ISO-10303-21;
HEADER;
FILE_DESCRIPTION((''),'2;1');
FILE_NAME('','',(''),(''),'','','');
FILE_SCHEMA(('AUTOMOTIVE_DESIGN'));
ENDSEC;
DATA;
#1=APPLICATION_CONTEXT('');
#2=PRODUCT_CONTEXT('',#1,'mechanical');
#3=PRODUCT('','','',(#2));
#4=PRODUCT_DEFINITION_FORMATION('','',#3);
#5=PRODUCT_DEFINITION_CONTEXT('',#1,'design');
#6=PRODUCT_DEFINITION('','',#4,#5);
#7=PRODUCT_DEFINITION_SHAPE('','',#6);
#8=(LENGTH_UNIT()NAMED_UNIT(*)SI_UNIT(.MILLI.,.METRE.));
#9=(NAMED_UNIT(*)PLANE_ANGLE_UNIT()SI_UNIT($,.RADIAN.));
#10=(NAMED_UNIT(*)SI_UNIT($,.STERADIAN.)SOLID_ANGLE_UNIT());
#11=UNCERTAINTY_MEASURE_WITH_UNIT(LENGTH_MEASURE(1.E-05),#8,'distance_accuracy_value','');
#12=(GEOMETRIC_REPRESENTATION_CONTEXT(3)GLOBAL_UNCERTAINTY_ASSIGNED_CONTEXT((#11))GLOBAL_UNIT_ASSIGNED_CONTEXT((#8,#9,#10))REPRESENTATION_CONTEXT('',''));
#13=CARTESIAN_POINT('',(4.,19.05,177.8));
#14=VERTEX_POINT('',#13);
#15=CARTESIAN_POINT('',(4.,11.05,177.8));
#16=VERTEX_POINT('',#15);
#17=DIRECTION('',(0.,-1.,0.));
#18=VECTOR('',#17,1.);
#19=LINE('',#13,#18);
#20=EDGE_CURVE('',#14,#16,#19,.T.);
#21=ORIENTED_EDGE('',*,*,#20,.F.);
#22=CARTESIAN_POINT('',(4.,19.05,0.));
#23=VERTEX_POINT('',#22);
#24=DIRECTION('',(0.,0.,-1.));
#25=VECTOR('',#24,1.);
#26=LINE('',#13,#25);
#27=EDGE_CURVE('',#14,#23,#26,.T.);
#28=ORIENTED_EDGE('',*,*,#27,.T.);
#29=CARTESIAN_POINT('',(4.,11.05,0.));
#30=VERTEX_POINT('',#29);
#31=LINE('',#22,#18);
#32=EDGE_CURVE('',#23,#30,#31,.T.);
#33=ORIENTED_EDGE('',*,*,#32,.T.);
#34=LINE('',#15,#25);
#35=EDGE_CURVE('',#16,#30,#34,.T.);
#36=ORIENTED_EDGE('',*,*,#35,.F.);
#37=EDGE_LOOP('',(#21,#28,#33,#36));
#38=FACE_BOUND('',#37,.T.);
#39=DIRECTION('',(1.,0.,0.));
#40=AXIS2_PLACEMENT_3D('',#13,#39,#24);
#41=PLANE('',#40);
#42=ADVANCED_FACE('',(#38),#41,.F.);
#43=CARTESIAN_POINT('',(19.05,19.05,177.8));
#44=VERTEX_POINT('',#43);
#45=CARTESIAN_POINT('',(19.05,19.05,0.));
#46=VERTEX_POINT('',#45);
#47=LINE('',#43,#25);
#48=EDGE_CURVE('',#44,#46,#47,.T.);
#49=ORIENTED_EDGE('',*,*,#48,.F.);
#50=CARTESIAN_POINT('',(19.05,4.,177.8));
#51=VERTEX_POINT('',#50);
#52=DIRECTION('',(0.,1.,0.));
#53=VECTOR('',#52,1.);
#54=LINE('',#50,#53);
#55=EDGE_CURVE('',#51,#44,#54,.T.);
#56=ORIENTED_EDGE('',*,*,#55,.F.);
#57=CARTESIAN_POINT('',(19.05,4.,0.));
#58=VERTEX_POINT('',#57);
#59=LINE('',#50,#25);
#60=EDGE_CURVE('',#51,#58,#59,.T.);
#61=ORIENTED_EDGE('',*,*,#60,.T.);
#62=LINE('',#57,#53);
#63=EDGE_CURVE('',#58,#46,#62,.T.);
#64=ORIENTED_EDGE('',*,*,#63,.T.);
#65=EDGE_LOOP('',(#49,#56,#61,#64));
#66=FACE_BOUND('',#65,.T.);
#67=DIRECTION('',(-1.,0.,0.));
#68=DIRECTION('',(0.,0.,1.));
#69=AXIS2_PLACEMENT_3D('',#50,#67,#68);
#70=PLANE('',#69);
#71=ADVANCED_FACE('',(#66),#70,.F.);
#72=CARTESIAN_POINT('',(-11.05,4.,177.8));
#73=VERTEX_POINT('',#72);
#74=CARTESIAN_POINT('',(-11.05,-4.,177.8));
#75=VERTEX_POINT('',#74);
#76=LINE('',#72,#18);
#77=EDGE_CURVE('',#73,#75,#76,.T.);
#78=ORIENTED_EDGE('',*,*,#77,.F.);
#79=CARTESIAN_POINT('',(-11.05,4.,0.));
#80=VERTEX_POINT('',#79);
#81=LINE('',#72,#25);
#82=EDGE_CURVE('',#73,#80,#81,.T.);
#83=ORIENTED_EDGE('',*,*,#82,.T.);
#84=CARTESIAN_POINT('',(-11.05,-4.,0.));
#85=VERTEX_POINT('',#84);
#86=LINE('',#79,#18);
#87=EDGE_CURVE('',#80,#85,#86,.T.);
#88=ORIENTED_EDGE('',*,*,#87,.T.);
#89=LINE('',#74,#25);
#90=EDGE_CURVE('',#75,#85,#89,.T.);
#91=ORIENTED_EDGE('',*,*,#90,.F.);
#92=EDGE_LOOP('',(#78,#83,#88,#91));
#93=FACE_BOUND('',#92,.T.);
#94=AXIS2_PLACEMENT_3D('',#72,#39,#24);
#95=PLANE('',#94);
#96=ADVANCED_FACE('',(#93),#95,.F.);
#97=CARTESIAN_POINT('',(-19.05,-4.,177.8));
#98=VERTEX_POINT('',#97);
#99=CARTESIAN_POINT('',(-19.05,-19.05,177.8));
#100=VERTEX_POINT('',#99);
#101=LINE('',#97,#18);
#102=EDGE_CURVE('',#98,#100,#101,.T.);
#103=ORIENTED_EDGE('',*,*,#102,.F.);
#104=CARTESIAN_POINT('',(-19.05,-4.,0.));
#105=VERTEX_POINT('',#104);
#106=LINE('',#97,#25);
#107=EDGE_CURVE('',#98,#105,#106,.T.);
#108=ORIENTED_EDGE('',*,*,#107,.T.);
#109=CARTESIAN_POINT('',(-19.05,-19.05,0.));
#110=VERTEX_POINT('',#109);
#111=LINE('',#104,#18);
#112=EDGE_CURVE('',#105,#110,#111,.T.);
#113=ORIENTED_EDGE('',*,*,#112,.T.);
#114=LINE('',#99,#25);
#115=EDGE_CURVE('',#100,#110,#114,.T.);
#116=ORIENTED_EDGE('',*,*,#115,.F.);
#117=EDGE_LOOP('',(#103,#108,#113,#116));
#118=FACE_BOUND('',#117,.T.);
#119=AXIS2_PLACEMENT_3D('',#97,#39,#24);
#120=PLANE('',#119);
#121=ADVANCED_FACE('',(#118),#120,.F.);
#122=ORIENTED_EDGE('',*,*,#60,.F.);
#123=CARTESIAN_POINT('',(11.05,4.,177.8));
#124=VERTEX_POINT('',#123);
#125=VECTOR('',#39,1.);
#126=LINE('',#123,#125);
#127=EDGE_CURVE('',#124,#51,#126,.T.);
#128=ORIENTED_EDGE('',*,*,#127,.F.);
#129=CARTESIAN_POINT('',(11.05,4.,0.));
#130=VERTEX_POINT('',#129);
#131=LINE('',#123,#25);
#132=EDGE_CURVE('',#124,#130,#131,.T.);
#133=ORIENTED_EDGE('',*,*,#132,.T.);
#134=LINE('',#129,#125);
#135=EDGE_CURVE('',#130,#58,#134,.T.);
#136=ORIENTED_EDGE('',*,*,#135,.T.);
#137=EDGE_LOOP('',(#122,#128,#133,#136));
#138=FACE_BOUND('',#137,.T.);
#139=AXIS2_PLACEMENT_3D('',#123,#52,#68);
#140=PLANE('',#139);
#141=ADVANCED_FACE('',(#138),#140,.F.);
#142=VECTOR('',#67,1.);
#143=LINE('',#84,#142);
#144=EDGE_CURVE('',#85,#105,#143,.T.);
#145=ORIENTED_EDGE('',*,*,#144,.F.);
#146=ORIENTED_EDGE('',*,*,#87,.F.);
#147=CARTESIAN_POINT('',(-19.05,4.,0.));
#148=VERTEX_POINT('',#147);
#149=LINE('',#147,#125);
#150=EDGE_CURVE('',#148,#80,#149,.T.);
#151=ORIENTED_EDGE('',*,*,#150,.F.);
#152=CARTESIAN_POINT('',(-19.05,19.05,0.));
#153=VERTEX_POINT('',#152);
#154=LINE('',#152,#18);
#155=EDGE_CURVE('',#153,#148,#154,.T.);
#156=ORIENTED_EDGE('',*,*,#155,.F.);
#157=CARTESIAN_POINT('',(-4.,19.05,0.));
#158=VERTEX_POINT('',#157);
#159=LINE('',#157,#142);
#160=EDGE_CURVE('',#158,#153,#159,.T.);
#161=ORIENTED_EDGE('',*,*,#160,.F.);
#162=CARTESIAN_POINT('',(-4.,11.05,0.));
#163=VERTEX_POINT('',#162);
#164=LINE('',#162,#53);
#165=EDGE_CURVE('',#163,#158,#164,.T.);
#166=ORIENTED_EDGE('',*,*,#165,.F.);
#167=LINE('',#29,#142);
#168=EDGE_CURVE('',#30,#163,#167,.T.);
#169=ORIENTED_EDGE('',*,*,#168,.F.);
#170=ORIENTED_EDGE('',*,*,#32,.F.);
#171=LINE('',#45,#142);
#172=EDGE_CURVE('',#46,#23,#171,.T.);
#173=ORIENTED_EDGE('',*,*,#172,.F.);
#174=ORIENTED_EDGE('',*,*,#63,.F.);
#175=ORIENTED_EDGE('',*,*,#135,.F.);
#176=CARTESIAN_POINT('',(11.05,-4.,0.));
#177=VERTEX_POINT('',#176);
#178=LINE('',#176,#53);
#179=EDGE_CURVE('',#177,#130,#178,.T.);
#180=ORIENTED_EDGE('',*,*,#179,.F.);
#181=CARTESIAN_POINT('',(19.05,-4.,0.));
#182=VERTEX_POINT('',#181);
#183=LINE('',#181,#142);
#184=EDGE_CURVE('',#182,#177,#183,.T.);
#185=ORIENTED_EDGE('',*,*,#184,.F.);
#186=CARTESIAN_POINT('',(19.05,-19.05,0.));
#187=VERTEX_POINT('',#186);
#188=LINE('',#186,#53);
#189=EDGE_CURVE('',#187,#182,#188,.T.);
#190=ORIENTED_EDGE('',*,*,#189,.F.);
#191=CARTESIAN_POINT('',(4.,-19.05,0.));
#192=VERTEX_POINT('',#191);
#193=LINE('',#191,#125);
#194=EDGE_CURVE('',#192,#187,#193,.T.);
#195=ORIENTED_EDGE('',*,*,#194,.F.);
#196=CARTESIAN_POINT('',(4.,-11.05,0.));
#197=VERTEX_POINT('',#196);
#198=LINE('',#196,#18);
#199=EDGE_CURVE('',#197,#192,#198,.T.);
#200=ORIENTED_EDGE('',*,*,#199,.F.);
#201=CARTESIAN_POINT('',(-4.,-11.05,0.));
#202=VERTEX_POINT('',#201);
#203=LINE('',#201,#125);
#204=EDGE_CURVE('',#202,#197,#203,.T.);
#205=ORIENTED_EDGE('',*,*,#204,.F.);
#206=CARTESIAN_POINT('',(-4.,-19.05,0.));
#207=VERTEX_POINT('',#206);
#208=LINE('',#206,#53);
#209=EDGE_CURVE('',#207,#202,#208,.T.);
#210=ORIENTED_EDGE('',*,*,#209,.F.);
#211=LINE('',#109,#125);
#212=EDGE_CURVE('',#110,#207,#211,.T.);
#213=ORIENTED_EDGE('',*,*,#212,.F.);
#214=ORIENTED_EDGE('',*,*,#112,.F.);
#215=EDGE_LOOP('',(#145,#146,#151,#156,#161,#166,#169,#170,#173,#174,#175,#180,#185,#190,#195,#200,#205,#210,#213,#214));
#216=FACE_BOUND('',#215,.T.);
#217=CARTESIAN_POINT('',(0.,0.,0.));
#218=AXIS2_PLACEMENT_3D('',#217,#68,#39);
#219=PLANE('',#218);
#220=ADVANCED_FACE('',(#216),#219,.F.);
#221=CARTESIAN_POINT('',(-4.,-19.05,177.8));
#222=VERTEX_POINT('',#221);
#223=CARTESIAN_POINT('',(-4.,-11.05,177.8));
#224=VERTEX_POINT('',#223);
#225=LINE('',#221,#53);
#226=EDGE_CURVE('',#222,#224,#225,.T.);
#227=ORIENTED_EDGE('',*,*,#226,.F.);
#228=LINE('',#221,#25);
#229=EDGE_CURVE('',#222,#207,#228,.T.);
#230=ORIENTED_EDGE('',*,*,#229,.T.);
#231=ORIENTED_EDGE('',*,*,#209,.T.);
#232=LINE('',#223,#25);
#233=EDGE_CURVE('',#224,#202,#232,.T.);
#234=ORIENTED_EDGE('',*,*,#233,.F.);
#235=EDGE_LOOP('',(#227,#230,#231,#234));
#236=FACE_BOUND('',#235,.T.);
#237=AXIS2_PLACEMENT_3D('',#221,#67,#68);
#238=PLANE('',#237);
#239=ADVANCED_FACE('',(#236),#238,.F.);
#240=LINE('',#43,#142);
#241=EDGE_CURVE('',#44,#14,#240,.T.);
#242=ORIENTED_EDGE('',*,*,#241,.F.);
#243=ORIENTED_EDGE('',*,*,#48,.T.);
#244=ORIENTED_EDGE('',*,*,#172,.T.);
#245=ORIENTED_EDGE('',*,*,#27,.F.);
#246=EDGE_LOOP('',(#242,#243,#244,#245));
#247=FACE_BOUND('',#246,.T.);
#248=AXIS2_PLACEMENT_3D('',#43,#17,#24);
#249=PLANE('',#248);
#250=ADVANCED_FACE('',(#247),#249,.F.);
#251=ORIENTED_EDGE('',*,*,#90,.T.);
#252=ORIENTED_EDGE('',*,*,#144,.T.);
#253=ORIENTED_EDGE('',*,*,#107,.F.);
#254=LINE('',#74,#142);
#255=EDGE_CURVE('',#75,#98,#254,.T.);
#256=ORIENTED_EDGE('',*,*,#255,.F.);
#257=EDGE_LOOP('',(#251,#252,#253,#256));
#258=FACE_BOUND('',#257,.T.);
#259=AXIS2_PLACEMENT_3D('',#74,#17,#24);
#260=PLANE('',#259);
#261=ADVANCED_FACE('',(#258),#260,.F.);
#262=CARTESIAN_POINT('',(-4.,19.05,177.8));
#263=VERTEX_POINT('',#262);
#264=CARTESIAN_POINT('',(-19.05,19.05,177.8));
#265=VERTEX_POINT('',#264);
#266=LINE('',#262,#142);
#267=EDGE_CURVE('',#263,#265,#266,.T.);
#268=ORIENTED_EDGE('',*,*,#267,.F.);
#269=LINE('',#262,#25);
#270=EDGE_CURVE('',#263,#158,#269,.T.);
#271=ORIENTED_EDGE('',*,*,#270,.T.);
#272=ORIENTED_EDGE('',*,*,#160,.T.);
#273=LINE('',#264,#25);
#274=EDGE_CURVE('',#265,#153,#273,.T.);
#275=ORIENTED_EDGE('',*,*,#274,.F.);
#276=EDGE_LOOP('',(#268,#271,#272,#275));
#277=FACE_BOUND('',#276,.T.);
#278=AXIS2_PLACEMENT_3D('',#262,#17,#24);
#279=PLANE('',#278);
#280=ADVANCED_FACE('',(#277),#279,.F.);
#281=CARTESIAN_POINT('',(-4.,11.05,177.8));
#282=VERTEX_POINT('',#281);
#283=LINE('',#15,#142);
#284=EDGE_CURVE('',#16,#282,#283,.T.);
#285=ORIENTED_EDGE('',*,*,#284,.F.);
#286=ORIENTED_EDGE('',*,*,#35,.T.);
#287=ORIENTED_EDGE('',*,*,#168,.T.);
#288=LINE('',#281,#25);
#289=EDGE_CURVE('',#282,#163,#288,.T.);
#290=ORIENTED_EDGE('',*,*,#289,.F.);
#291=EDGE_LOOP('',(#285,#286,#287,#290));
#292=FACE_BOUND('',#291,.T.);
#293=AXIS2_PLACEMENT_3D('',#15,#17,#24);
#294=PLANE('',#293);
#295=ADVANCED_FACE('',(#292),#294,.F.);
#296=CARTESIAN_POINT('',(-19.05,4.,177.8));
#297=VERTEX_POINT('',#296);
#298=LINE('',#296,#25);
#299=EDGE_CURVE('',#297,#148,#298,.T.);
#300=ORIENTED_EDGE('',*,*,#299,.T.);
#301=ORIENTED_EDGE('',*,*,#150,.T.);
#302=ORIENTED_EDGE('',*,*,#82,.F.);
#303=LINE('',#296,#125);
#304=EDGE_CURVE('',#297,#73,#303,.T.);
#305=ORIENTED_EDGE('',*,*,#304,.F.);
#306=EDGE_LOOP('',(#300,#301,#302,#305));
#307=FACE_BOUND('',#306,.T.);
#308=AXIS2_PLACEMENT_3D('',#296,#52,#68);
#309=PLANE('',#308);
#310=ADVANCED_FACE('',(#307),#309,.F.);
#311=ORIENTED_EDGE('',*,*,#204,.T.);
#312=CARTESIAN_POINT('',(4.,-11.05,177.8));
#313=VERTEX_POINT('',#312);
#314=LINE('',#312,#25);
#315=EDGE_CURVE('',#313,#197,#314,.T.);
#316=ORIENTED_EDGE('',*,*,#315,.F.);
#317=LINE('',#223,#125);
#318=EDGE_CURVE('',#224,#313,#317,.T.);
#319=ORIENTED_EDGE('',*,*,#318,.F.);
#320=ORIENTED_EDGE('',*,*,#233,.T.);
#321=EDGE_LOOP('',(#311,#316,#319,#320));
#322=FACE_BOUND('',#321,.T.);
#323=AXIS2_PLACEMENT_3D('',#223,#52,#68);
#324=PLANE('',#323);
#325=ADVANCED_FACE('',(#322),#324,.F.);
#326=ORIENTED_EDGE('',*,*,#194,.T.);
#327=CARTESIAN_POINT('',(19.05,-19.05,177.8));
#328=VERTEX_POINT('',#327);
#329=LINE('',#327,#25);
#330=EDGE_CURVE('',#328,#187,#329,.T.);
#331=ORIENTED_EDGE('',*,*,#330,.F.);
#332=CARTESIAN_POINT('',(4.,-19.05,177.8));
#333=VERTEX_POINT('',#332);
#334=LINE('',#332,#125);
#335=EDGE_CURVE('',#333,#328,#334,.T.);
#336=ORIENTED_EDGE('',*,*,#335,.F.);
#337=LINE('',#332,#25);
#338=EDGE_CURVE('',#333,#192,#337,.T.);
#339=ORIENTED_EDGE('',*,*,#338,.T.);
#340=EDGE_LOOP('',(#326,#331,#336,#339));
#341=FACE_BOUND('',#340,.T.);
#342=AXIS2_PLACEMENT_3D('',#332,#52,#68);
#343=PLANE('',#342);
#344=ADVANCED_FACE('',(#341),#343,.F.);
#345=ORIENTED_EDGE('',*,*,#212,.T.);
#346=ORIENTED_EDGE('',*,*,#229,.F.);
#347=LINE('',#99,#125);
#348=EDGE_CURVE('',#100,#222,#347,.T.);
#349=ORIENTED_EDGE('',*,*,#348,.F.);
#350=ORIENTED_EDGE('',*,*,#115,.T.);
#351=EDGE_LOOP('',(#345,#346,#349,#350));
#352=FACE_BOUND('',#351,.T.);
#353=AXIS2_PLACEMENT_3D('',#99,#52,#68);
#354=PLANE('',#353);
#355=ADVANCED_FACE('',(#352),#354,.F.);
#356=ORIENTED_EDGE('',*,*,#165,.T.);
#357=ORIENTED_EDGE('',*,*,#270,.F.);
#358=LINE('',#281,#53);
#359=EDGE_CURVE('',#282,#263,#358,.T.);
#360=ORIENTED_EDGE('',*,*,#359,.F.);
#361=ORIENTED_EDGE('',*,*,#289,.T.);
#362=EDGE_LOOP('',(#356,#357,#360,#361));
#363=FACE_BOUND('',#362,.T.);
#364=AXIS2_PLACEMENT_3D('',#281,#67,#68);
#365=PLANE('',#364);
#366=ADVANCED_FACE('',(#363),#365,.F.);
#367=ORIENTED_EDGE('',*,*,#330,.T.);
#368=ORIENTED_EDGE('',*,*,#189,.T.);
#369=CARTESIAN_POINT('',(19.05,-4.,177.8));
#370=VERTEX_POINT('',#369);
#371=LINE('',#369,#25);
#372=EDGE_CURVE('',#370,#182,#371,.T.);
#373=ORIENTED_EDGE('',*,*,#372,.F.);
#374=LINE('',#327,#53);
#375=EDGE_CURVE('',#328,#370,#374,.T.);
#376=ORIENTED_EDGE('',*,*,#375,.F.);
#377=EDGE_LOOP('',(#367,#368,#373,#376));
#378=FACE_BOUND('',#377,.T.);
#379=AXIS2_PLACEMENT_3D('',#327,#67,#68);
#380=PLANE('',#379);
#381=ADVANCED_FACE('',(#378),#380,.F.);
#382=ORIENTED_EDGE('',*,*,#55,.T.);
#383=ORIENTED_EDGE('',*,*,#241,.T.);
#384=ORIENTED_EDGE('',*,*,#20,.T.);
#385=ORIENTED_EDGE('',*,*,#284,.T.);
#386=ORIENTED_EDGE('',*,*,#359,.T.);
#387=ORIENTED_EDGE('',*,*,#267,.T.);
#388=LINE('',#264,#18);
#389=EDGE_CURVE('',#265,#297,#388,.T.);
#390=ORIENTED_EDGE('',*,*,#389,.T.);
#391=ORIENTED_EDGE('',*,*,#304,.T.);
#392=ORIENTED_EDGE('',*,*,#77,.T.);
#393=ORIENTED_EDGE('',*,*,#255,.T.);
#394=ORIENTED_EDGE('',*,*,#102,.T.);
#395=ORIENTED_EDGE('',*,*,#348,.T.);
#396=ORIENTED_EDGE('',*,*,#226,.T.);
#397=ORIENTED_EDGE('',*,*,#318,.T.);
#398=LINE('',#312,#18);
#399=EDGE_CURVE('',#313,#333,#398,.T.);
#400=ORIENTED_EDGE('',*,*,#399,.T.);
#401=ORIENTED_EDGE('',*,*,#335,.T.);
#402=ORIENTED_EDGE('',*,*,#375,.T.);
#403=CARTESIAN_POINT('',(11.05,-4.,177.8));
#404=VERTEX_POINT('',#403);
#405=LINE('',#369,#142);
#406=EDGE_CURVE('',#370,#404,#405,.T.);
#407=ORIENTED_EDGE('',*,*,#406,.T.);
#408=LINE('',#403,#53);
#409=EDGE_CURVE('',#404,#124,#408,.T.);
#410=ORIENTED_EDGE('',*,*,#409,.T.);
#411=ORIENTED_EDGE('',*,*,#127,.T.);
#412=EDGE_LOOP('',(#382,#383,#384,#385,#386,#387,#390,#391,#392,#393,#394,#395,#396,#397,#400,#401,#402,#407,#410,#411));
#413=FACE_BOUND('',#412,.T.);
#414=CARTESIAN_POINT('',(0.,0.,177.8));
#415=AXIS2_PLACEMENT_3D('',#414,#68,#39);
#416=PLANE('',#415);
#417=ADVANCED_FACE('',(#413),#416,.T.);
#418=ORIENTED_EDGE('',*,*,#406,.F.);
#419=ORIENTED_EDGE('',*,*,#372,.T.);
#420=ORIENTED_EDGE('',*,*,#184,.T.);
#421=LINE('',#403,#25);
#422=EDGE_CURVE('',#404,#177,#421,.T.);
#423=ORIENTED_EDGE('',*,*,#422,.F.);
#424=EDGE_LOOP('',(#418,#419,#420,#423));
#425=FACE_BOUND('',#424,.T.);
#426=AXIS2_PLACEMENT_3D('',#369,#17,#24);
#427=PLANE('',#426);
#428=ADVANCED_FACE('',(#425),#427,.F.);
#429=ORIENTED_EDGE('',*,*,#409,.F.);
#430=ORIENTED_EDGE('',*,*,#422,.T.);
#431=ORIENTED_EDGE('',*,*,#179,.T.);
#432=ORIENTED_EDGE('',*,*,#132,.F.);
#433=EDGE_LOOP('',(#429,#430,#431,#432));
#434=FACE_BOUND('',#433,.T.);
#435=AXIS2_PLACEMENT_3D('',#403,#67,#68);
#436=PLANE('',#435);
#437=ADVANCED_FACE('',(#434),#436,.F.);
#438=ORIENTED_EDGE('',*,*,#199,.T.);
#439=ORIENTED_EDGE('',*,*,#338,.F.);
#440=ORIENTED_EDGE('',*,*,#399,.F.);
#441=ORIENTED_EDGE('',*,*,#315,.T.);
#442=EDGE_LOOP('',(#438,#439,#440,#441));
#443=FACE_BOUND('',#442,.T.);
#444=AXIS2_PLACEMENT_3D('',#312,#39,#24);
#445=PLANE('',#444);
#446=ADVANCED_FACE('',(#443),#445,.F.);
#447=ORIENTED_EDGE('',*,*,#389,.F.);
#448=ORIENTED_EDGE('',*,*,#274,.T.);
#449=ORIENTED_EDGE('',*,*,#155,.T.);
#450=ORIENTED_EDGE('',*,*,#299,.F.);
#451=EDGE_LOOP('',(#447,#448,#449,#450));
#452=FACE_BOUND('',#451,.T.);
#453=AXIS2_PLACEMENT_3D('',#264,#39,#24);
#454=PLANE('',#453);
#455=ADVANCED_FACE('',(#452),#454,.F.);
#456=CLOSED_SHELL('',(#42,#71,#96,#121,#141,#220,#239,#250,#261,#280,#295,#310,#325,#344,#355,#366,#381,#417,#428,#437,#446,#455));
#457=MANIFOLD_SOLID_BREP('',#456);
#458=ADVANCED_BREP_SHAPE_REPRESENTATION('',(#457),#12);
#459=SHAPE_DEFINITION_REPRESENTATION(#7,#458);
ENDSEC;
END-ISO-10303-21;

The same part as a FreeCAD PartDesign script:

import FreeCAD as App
import Part
import Sketcher
from FreeCAD import Vector
Q = App.Units.Quantity


def add_polygon(sketch, points):
    """Adds a closed chain of lines whose ends are joined by coincident constraints."""
    first, n = sketch.GeometryCount, len(points)
    for a, b in zip(points, points[1:] + points[:1]):
        sketch.addGeometry(Part.LineSegment(App.Vector(*a, 0), App.Vector(*b, 0)), False)
    for i in range(n):
        sketch.addConstraint(Sketcher.Constraint("Coincident", first + i, 2, first + (i + 1) % n, 1))

doc = App.newDocument("Part")
body = doc.addObject("PartDesign::Body", "Body")

# Sketch on XY plane
sketch1 = body.newObject("Sketcher::SketchObject", "Sketch")
sketch1.AttachmentSupport = (doc.getObject("XY_Plane"), [""])
sketch1.MapMode = "FlatFace"
add_polygon(sketch1, [(-19, -19), (-4, -19), (-4, -11), (4, -11), (4, -19), (19, -19), (19, -4), (11, -4), (11, 4), (19, 4), (19, 19), (4, 19), (4, 11), (-4, 11), (-4, 19), (-19, 19), (-19, 4), (-11, 4), (-11, -4), (-19, -4)])  # lines 0-19
sketch1.addConstraint([
    Sketcher.Constraint("Horizontal", 0),
    Sketcher.Constraint("Vertical", 1),
    Sketcher.Constraint("Horizontal", 2),
    Sketcher.Constraint("Vertical", 3),
    Sketcher.Constraint("Horizontal", 4),
    Sketcher.Constraint("Vertical", 5),
    Sketcher.Constraint("Horizontal", 6),
    Sketcher.Constraint("Vertical", 7),
    Sketcher.Constraint("Horizontal", 8),
    Sketcher.Constraint("Vertical", 9),
    Sketcher.Constraint("Horizontal", 10),
    Sketcher.Constraint("Vertical", 11),
    Sketcher.Constraint("Horizontal", 12),
    Sketcher.Constraint("Vertical", 13),
    Sketcher.Constraint("Horizontal", 14),
    Sketcher.Constraint("Vertical", 15),
    Sketcher.Constraint("Horizontal", 16),
    Sketcher.Constraint("Vertical", 17),
    Sketcher.Constraint("Horizontal", 18),
    Sketcher.Constraint("Vertical", 19),
    Sketcher.Constraint("Symmetric", 0, 2, 10, 2, -1, 1),
    Sketcher.Constraint("Symmetric", 2, 2, 12, 2, -1, 1),
    Sketcher.Constraint("Symmetric", 4, 2, 14, 2, -1, 1),
    Sketcher.Constraint("Symmetric", 6, 2, 16, 2, -1, 1),
    Sketcher.Constraint("Symmetric", 8, 2, 18, 2, -1, 1),
    Sketcher.Constraint("Symmetric", 0, 2, 3, 2, -2),
    Sketcher.Constraint("Symmetric", 8, 2, 15, 2, -2),
    Sketcher.Constraint("Equal", 2, 6),
    Sketcher.Constraint("Equal", 18, 1),
    Sketcher.Constraint("Equal", 14, 5),
    Sketcher.Constraint("Equal", 3, 7),
    Sketcher.Constraint("DistanceX", 2, 1, 2, 2, Q("8 mm")),
    Sketcher.Constraint("DistanceX", 0, 1, 0, 2, Q("15.05 mm")),
])
pad1 = body.newObject("PartDesign::Pad", "Pad")
pad1.Profile = sketch1
pad1.Length = 177.8

doc.recompute()
